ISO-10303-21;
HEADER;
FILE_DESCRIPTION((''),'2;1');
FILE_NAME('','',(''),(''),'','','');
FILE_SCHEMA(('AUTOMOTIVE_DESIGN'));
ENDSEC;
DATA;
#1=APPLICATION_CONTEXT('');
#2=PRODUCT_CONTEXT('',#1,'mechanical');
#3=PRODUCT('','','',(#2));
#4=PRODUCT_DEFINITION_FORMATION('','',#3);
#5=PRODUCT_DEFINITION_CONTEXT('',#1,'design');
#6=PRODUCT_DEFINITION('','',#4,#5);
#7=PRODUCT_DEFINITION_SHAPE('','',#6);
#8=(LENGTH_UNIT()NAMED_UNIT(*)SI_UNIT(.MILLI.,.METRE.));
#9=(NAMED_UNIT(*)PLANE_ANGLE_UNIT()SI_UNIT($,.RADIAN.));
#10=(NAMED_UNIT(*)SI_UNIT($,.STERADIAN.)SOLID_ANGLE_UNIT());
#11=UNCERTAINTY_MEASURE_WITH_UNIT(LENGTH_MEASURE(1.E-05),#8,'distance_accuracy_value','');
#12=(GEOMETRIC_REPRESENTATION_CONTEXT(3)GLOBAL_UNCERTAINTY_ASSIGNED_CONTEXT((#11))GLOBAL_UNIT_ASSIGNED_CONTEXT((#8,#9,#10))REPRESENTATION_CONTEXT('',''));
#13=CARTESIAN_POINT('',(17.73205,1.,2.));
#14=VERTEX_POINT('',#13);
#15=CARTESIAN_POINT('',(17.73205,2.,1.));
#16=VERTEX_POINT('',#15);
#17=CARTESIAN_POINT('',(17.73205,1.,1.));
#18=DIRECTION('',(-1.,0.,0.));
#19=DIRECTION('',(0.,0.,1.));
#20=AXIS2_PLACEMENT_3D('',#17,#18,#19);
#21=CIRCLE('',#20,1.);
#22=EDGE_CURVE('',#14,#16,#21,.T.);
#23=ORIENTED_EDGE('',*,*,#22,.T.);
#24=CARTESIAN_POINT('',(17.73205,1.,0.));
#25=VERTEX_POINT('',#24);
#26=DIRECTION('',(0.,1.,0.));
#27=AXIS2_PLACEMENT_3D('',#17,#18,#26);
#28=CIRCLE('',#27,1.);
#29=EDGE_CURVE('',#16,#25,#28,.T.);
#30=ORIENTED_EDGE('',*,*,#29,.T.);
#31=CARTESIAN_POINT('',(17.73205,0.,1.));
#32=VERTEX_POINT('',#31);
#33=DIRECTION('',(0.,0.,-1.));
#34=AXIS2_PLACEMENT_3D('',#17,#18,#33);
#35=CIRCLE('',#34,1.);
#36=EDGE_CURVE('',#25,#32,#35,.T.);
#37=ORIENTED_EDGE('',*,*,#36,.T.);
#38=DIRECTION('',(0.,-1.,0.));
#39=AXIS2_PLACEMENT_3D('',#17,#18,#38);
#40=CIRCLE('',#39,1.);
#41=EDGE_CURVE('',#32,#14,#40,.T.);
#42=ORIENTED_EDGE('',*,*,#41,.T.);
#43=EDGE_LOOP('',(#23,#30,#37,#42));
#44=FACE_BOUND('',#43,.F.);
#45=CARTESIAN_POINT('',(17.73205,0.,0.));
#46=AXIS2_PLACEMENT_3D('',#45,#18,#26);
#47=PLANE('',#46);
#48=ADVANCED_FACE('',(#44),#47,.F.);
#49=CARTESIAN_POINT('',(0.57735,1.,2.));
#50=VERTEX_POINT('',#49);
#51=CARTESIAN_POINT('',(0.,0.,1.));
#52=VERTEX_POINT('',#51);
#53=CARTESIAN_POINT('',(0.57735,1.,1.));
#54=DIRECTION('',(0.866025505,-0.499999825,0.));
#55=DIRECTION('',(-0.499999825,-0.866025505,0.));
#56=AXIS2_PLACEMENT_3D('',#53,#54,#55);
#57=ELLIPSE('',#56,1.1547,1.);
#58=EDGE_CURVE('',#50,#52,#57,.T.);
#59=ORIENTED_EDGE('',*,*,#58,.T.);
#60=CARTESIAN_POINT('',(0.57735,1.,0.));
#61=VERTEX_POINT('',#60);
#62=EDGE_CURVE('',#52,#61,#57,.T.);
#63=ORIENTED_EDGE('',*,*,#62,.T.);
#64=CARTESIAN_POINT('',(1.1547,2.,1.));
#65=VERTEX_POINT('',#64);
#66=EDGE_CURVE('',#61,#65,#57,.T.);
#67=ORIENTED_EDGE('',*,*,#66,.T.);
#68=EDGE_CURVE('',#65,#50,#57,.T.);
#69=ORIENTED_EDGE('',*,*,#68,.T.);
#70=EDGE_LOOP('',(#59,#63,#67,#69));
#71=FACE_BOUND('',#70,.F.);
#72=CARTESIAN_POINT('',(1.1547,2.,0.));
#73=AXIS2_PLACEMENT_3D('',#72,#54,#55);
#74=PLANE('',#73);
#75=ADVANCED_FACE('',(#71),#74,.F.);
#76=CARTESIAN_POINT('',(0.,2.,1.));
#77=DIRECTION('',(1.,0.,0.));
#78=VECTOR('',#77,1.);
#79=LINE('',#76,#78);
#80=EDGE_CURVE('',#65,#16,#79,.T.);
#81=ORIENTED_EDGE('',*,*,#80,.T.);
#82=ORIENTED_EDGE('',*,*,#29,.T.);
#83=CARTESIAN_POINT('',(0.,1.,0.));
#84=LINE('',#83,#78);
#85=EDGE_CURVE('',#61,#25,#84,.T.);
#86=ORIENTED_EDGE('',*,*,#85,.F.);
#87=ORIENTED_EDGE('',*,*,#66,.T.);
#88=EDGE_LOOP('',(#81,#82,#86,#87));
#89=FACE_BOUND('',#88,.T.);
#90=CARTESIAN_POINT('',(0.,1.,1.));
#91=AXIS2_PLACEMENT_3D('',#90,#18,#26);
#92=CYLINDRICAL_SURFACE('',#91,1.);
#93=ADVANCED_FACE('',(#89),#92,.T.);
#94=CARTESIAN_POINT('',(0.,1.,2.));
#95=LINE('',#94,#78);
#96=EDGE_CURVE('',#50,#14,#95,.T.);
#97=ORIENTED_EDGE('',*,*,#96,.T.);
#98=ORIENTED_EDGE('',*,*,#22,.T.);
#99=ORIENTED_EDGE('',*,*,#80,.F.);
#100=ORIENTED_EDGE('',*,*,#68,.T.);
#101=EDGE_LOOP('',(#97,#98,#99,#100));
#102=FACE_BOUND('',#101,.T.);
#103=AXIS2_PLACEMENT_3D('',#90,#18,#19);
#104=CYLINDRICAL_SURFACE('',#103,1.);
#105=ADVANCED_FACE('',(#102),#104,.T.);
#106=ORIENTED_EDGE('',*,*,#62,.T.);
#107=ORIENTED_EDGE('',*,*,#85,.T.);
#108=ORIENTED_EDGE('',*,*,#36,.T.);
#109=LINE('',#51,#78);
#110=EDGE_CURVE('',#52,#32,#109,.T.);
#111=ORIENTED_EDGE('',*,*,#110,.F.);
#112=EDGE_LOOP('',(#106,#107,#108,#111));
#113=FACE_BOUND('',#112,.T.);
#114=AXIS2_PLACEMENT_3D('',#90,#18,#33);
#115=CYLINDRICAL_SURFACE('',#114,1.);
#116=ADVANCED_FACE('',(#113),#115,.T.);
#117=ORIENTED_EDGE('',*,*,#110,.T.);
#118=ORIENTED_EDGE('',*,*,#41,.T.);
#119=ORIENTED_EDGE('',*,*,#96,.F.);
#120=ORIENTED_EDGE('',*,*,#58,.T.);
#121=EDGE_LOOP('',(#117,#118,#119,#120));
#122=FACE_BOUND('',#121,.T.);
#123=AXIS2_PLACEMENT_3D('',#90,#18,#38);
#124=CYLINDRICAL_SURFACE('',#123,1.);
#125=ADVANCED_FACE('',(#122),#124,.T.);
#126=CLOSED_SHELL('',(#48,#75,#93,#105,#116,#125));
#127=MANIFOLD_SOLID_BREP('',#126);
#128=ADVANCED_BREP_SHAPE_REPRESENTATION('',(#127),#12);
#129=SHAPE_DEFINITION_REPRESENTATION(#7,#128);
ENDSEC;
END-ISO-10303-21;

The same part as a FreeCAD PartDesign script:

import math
import FreeCAD as App
import Part
import Sketcher
from FreeCAD import Vector
Q = App.Units.Quantity

doc = App.newDocument("Part")
body = doc.addObject("PartDesign::Body", "Body")

# Sketch on XY plane
sketch1 = body.newObject("Sketcher::SketchObject", "Sketch")
sketch1.AttachmentSupport = (doc.getObject("XY_Plane"), [""])
sketch1.MapMode = "FlatFace"
sketch1.addGeometry(Part.LineSegment(Vector(1.1547, 2, 0), Vector(0, 0, 0)), False)
sketch1.addGeometry(Part.LineSegment(Vector(0, 0, 0), Vector(17.73205, 0, 0)), False)
sketch1.addGeometry(Part.LineSegment(Vector(17.73205, 0, 0), Vector(17.73205, 2, 0)), False)
sketch1.addGeometry(Part.LineSegment(Vector(17.73205, 2, 0), Vector(1.1547, 2, 0)), False)
sketch1.addConstraint(Sketcher.Constraint("Coincident", 0, 2, 1, 1))
sketch1.addConstraint(Sketcher.Constraint("Coincident", 1, 2, 2, 1))
sketch1.addConstraint(Sketcher.Constraint("Coincident", 2, 2, 3, 1))
sketch1.addConstraint(Sketcher.Constraint("Coincident", 3, 2, 0, 1))
sketch1.addConstraint(Sketcher.Constraint("Horizontal", 1))
sketch1.addConstraint(Sketcher.Constraint("Vertical", 2))
sketch1.addConstraint(Sketcher.Constraint("Horizontal", 3))
sketch1.addConstraint(Sketcher.Constraint("Coincident", 0, 2, -1, 1))
sketch1.addConstraint(Sketcher.Constraint("DistanceY", 2, 1, 2, 2, 2.0))
sketch1.addConstraint(Sketcher.Constraint("Angle", 0, Q("-119.999988 deg")))
sketch1.addConstraint(Sketcher.Constraint("DistanceX", 1, 1, 1, 2, 17.73205))
pad1 = body.newObject("PartDesign::Pad", "Pad")
pad1.Profile = sketch1
pad1.Length = 2

# Sketch on YZ plane
sketch2 = body.newObject("Sketcher::SketchObject", "Sketch001")
sketch2.AttachmentSupport = (doc.getObject("YZ_Plane"), [""])
sketch2.MapMode = "FlatFace"
sketch2.addGeometry(Part.ArcOfCircle(Part.Circle(Vector(1, 1, 0), Vector(0, 0, 1), 1), math.radians(-90), math.radians(0)), False)
sketch2.addGeometry(Part.LineSegment(Vector(1, 0, 0), Vector(2, 0, 0)), False)
sketch2.addGeometry(Part.LineSegment(Vector(2, 0, 0), Vector(2, 1, 0)), False)
sketch2.addGeometry(Part.LineSegment(Vector(2, 2, 0), Vector(1, 2, 0)), False)
sketch2.addGeometry(Part.ArcOfCircle(Part.Circle(Vector(1, 1, 0), Vector(0, 0, 1), 1), math.radians(0), math.radians(90)), False)
sketch2.addGeometry(Part.LineSegment(Vector(2, 1, 0), Vector(2, 2, 0)), False)
sketch2.addGeometry(Part.LineSegment(Vector(0, 2, 0), Vector(0, 1, 0)), False)
sketch2.addGeometry(Part.ArcOfCircle(Part.Circle(Vector(1, 1, 0), Vector(0, 0, 1), 1), math.radians(90), math.radians(180)), False)
sketch2.addGeometry(Part.LineSegment(Vector(1, 2, 0), Vector(0, 2, 0)), False)
sketch2.addGeometry(Part.LineSegment(Vector(0, 1, 0), Vector(0, 0, 0)), False)
sketch2.addGeometry(Part.LineSegment(Vector(0, 0, 0), Vector(1, 0, 0)), False)
sketch2.addGeometry(Part.ArcOfCircle(Part.Circle(Vector(1, 1, 0), Vector(0, 0, 1), 1), math.radians(180), math.radians(270)), False)
sketch2.addConstraint(Sketcher.Constraint("Tangent", 0, 1, 1, 1))
sketch2.addConstraint(Sketcher.Constraint("Coincident", 1, 2, 2, 1))
sketch2.addConstraint(Sketcher.Constraint("Tangent", 2, 2, 0, 2))
sketch2.addConstraint(Sketcher.Constraint("Tangent", 3, 2, 4, 2))
sketch2.addConstraint(Sketcher.Constraint("Tangent", 4, 1, 5, 1))
sketch2.addConstraint(Sketcher.Constraint("Coincident", 5, 2, 3, 1))
sketch2.addConstraint(Sketcher.Constraint("Tangent", 6, 2, 7, 2))
sketch2.addConstraint(Sketcher.Constraint("Tangent", 7, 1, 8, 1))
sketch2.addConstraint(Sketcher.Constraint("Coincident", 8, 2, 6, 1))
sketch2.addConstraint(Sketcher.Constraint("Coincident", 9, 2, 10, 1))
sketch2.addConstraint(Sketcher.Constraint("Tangent", 10, 2, 11, 2))
sketch2.addConstraint(Sketcher.Constraint("Tangent", 11, 1, 9, 1))
sketch2.addConstraint(Sketcher.Constraint("Horizontal", 1))
sketch2.addConstraint(Sketcher.Constraint("Vertical", 2))
sketch2.addConstraint(Sketcher.Constraint("Horizontal", 3))
sketch2.addConstraint(Sketcher.Constraint("Vertical", 5))
sketch2.addConstraint(Sketcher.Constraint("Vertical", 6))
sketch2.addConstraint(Sketcher.Constraint("Horizontal", 8))
sketch2.addConstraint(Sketcher.Constraint("Vertical", 9))
sketch2.addConstraint(Sketcher.Constraint("Horizontal", 10))
sketch2.addConstraint(Sketcher.Constraint("Coincident", 9, 2, -1, 1))
sketch2.addConstraint(Sketcher.Constraint("Coincident", 4, 3, 0, 3))
sketch2.addConstraint(Sketcher.Constraint("Coincident", 7, 3, 0, 3))
sketch2.addConstraint(Sketcher.Constraint("Coincident", 11, 3, 0, 3))
sketch2.addConstraint(Sketcher.Constraint("Equal", 0, 4))
sketch2.addConstraint(Sketcher.Constraint("Equal", 4, 7))
sketch2.addConstraint(Sketcher.Constraint("Equal", 7, 11))
sketch2.addConstraint(Sketcher.Constraint("Radius", 0, 1.0))
pocket1 = body.newObject("PartDesign::Pocket", "Pocket")
pocket1.Profile = sketch2
pocket1.Length = 25
pocket1.Reversed = True

doc.recompute()
